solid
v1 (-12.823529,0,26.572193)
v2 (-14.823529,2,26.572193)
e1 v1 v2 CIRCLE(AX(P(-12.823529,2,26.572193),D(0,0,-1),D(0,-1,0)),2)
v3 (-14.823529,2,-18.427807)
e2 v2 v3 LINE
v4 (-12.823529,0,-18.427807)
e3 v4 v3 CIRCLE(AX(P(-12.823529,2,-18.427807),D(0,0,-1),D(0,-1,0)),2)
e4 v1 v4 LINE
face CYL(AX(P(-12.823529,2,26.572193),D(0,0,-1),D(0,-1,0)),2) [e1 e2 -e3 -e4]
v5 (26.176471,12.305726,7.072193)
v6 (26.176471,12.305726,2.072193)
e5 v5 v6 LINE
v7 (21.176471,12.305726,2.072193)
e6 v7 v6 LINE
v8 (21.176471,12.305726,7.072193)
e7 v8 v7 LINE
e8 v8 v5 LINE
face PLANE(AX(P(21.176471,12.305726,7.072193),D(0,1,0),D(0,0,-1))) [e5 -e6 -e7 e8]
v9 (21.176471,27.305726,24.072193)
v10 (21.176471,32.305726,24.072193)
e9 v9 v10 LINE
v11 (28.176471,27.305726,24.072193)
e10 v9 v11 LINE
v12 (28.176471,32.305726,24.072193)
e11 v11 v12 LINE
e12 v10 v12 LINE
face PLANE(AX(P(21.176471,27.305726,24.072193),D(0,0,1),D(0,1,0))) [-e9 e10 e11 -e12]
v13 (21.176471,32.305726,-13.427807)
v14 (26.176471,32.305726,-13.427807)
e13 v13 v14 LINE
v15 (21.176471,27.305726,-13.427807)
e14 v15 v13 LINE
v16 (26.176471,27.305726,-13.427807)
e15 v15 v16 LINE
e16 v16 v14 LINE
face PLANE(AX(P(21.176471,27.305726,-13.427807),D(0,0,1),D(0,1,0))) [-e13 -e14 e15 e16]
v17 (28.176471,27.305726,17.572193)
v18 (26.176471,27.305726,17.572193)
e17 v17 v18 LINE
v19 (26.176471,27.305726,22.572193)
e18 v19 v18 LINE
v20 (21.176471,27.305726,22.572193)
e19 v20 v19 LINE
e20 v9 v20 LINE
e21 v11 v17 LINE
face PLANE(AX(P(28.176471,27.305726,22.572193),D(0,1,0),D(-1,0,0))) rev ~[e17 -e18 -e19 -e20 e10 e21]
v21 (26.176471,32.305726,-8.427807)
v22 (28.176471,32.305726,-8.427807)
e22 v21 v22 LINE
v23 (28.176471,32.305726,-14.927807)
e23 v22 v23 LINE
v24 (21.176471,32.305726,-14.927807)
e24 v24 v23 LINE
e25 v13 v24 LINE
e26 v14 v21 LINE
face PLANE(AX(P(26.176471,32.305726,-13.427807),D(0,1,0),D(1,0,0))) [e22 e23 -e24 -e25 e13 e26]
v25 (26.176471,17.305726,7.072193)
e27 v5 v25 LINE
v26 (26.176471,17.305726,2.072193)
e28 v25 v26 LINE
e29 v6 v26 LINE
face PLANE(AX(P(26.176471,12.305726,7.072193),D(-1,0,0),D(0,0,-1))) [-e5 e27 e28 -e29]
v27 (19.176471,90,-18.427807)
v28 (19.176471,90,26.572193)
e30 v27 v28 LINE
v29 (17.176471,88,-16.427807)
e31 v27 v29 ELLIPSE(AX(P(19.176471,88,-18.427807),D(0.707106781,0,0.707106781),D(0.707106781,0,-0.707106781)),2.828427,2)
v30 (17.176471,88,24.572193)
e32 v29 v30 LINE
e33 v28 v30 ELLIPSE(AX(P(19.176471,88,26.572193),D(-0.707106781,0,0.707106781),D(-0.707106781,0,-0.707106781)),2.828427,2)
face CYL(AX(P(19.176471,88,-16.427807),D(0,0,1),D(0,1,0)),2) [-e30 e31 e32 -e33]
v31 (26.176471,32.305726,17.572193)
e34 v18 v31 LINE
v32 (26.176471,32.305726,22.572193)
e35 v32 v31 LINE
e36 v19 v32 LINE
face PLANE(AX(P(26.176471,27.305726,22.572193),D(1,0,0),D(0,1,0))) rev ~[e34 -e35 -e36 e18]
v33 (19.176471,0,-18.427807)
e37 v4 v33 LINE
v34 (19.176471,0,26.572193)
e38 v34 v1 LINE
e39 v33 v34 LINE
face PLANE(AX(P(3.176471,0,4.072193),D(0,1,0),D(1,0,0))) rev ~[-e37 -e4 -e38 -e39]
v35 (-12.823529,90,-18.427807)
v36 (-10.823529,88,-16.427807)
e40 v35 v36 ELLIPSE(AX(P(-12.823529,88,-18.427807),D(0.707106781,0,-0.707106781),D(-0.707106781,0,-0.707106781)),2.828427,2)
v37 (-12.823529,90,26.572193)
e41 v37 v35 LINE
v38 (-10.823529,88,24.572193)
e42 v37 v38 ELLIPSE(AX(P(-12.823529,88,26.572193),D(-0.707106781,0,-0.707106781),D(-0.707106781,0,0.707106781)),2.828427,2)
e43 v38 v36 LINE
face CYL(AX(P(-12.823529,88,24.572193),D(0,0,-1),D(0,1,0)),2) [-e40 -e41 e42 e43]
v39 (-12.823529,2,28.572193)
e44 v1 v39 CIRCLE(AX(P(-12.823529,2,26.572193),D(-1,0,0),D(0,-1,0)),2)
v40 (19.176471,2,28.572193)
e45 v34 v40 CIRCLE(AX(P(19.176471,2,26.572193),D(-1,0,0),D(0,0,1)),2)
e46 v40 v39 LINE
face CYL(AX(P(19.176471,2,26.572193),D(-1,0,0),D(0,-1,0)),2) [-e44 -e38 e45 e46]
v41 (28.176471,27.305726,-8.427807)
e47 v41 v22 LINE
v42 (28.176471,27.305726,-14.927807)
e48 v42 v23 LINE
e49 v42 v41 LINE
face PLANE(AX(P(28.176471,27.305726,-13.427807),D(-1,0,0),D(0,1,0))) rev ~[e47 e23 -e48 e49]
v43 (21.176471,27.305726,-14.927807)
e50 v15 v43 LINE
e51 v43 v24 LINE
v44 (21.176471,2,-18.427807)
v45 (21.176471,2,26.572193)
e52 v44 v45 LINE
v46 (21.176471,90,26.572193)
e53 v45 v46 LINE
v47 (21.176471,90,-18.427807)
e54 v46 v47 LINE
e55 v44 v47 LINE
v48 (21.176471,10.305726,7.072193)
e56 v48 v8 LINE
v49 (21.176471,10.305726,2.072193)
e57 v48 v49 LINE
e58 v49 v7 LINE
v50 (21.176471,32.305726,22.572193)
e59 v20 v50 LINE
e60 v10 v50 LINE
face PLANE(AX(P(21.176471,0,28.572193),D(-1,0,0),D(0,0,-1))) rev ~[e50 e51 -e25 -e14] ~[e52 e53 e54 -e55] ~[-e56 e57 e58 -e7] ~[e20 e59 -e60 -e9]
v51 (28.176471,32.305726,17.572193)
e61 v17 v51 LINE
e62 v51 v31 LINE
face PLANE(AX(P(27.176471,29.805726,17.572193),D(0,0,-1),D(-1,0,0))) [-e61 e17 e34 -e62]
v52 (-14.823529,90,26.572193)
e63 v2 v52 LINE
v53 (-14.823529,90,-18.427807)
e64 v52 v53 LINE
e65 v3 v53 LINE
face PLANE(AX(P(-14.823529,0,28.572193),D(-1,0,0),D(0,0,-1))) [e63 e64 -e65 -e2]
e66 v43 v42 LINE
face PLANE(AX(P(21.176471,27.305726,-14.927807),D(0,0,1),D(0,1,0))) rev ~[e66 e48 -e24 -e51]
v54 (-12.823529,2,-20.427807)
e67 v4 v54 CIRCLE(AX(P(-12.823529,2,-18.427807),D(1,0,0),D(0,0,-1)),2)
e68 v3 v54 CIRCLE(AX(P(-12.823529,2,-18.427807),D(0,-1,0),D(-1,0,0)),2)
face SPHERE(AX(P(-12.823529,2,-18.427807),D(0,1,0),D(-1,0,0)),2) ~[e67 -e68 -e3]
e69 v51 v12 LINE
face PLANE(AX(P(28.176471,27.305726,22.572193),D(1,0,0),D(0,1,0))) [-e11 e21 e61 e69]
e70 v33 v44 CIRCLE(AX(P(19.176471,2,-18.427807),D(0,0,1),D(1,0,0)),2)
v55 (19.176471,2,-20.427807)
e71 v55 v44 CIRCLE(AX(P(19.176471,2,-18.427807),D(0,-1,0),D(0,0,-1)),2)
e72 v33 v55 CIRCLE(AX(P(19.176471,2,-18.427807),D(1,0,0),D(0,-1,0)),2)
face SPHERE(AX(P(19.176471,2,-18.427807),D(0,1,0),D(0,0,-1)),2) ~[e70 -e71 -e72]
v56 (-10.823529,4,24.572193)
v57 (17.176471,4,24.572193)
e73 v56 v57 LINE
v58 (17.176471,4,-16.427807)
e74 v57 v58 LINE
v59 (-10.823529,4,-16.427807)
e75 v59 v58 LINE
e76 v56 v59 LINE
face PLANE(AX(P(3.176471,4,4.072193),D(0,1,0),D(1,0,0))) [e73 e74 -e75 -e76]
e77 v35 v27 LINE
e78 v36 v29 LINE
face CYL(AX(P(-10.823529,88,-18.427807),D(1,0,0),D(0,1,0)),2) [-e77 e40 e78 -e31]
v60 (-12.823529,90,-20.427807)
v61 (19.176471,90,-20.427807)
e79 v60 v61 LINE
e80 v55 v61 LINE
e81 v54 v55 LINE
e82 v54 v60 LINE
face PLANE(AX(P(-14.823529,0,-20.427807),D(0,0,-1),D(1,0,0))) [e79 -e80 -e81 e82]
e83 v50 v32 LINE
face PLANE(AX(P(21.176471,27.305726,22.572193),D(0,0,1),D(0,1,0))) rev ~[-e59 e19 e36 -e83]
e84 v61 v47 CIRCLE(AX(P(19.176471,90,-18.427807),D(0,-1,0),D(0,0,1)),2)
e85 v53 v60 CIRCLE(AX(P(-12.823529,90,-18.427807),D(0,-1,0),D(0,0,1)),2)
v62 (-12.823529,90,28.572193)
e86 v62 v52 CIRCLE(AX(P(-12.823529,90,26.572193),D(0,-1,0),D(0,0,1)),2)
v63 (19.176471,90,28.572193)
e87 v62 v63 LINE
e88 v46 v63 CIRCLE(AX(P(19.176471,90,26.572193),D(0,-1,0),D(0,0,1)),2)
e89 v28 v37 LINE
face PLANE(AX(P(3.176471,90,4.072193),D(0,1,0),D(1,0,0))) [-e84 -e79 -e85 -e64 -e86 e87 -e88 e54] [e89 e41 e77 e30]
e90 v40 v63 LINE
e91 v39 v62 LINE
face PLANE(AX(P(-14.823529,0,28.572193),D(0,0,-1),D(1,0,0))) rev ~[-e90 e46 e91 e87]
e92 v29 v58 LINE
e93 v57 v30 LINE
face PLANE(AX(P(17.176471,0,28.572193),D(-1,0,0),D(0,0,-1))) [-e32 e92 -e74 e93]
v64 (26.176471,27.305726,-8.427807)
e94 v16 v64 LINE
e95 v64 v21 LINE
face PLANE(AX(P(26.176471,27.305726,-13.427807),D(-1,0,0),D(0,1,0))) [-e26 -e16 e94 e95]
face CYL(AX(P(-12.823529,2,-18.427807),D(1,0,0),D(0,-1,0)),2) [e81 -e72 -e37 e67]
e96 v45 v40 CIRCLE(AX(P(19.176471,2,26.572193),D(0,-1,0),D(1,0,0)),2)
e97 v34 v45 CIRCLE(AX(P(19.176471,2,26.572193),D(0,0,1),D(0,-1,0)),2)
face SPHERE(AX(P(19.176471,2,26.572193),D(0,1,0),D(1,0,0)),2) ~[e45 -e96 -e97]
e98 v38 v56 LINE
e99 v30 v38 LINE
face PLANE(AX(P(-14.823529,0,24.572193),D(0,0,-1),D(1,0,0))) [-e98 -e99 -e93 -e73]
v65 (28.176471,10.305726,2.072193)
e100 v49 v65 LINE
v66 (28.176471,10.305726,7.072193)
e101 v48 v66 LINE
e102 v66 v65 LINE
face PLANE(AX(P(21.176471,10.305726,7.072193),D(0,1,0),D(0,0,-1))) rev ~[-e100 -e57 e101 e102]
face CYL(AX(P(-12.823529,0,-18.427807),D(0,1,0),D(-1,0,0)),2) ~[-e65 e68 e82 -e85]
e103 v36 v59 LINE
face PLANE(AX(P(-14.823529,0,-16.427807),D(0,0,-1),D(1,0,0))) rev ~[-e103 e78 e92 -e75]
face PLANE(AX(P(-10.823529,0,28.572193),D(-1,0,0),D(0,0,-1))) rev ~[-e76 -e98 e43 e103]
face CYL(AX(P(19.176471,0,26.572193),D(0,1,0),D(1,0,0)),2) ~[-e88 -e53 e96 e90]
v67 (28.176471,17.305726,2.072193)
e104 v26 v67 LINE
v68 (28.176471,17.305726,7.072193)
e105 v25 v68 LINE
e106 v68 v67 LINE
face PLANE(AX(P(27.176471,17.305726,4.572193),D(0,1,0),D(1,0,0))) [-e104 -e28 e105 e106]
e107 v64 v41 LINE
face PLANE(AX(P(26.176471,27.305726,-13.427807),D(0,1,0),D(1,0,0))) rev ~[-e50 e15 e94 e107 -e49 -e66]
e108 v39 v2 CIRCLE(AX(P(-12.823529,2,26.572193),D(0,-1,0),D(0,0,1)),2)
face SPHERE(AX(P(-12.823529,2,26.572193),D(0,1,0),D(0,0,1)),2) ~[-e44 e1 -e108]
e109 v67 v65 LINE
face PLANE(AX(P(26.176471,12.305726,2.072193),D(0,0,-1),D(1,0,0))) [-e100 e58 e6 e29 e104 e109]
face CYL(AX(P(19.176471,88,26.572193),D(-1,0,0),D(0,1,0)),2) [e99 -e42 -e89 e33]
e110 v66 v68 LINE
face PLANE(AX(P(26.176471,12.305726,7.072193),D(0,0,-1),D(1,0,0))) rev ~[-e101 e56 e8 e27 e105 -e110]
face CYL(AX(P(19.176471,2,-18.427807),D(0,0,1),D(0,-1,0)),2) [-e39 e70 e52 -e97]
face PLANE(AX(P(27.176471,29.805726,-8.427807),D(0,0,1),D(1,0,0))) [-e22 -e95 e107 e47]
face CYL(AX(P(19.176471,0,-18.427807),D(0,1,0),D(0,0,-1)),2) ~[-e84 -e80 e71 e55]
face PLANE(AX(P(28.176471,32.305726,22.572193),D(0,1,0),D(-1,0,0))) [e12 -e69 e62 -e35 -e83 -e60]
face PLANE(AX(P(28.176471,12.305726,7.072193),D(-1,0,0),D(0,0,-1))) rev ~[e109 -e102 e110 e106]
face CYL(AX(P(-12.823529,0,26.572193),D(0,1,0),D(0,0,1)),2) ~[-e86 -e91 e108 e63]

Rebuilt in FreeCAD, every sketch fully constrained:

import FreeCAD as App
import Part
import Sketcher
Q = App.Units.Quantity


def edges_at(feature, points):
    """Names of the edges that pass closest to the given points."""
    edges = feature.Shape.Edges
    near = lambda p: min(range(len(edges)), key=lambda i: edges[i].distToShape(Part.Vertex(*p))[0])
    return sorted({f"Edge{near(p) + 1}" for p in points})


def faces_at(feature, points):
    """Names of the faces that lie closest to the given points."""
    faces = feature.Shape.Faces
    near = lambda p: min(range(len(faces)), key=lambda i: faces[i].distToShape(Part.Vertex(*p))[0])
    return sorted({f"Face{near(p) + 1}" for p in points})


def add_polygon(sketch, points):
    """Adds a closed chain of lines whose ends are joined by coincident constraints."""
    first, n = sketch.GeometryCount, len(points)
    for a, b in zip(points, points[1:] + points[:1]):
        sketch.addGeometry(Part.LineSegment(App.Vector(*a, 0), App.Vector(*b, 0)), False)
    for i in range(n):
        sketch.addConstraint(Sketcher.Constraint("Coincident", first + i, 2, first + (i + 1) % n, 1))

doc = App.newDocument("Part")
body = doc.addObject("PartDesign::Body", "Body")

# Sketch on XZ plane
sketch1 = body.newObject("Sketcher::SketchObject", "Sketch")
sketch1.AttachmentSupport = (doc.getObject("XZ_Plane"), [""])
sketch1.MapMode = "FlatFace"
add_polygon(sketch1, [(-15, -20), (-15, 29), (21, 29), (21, -20)])  # lines 0-3
sketch1.addConstraint([
    Sketcher.Constraint("Vertical", 0),
    Sketcher.Constraint("Horizontal", 1),
    Sketcher.Constraint("Vertical", 2),
    Sketcher.Constraint("Horizontal", 3),
    Sketcher.Constraint("DistanceX", 1, 1, 1, 2, Q("36 mm")),
    Sketcher.Constraint("DistanceY", 0, 1, 0, 2, Q("49 mm")),
    Sketcher.Constraint("DistanceX", 0, 2, -1, 1, Q("14.823529 mm")),
    Sketcher.Constraint("DistanceY", -1, 1, 0, 2, Q("28.572193 mm")),
])
pad1 = body.newObject("PartDesign::Pad", "Pad")
pad1.Profile = sketch1
pad1.Length = 90
pad1.Reversed = True
doc.recompute()

thickness = body.newObject("PartDesign::Thickness", "Thickness")
thickness.Base = (pad1, faces_at(pad1, [(3.176, 90, 4.072)]))
thickness.Value = 4
thickness.Reversed = True
thickness.Join = "Intersection"
doc.recompute()

fillet = body.newObject("PartDesign::Fillet", "Fillet")
fillet.Base = (thickness, edges_at(thickness, [(-14.824, 45, -20.428)]))
fillet.Radius = 2
doc.recompute()

fillet2 = body.newObject("PartDesign::Fillet", "Fillet001")
fillet2.Base = (fillet, edges_at(fillet, [(21.176, 45, -20.428)]))
fillet2.Radius = 2
doc.recompute()

fillet3 = body.newObject("PartDesign::Fillet", "Fillet002")
fillet3.Base = (fillet2, edges_at(fillet2, [(21.176, 45, 28.572)]))
fillet3.Radius = 2
doc.recompute()

fillet4 = body.newObject("PartDesign::Fillet", "Fillet003")
fillet4.Base = (fillet3, edges_at(fillet3, [(-14.824, 45, 28.572)]))
fillet4.Radius = 2
doc.recompute()

fillet5 = body.newObject("PartDesign::Fillet", "Fillet004")
fillet5.Base = (fillet4, edges_at(fillet4, [
    (-14.824, 0, 4.072),
    (3.176, 0, -20.428),
    (21.176, 0, 4.072),
    (3.176, 0, 28.572),
]))
fillet5.Radius = 2

# Sketch on YZ plane
sketch2 = body.newObject("Sketcher::SketchObject", "Sketch001")
sketch2.AttachmentSupport = (doc.getObject("YZ_Plane"), [""])
sketch2.MapMode = "FlatFace"
sketch2.AttachmentOffset = App.Placement(App.Vector(0, 0, 21.176471), App.Rotation())
add_polygon(sketch2, [(32.3, 24.1), (27.3, 24.1), (27.3, 22.6), (32.3, 22.6)])  # lines 0-3
add_polygon(sketch2, [(32.3, -13.4), (27.3, -13.4), (27.3, -14.9), (32.3, -14.9)])  # lines 4-7
add_polygon(sketch2, [(12.3, 7.1), (10.3, 7.1), (10.3, 2.1), (12.3, 2.1)])  # lines 8-11
sketch2.addConstraint([
    Sketcher.Constraint("Horizontal", 0),
    Sketcher.Constraint("Vertical", 1),
    Sketcher.Constraint("Horizontal", 2),
    Sketcher.Constraint("Vertical", 3),
    Sketcher.Constraint("Horizontal", 4),
    Sketcher.Constraint("Vertical", 5),
    Sketcher.Constraint("Horizontal", 6),
    Sketcher.Constraint("Vertical", 7),
    Sketcher.Constraint("Horizontal", 8),
    Sketcher.Constraint("Vertical", 9),
    Sketcher.Constraint("Horizontal", 10),
    Sketcher.Constraint("Vertical", 11),
    Sketcher.Constraint("Vertical", 1, 2, 4, 2),
    Sketcher.Constraint("Vertical", 3, 2, 6, 2),
    Sketcher.Constraint("Equal", 3, 5),
    Sketcher.Constraint("Equal", 6, 9),
    Sketcher.Constraint("DistanceX", 0, 2, 0, 1, Q("5 mm")),
    Sketcher.Constraint("DistanceX", 8, 2, 8, 1, Q("2 mm")),
    Sketcher.Constraint("DistanceY", 1, 2, 1, 1, Q("1.5 mm")),
    Sketcher.Constraint("DistanceY", 4, 2, 1, 2, Q("36 mm")),
    Sketcher.Constraint("DistanceX", 8, 2, 1, 2, Q("17 mm")),
    Sketcher.Constraint("DistanceY", 8, 2, 0, 2, Q("17 mm")),
    Sketcher.Constraint("DistanceX", -1, 1, 0, 2, Q("27.305726 mm")),
    Sketcher.Constraint("DistanceY", -1, 1, 0, 2, Q("24.072193 mm")),
])
pad2 = body.newObject("PartDesign::Pad", "Pad001")
pad2.Profile = sketch2
pad2.Length = 7

# Sketch on XY plane
sketch3 = body.newObject("Sketcher::SketchObject", "Sketch002")
sketch3.AttachmentSupport = (doc.getObject("XY_Plane"), [""])
sketch3.MapMode = "FlatFace"
sketch3.AttachmentOffset = App.Placement(App.Vector(0, 0, 22.572193), App.Rotation())
add_polygon(sketch3, [(28.2, 32.3), (28.2, 27.3), (26.2, 27.3), (26.2, 32.3)])  # lines 0-3
sketch3.addConstraint([
    Sketcher.Constraint("Vertical", 0),
    Sketcher.Constraint("Horizontal", 1),
    Sketcher.Constraint("Vertical", 2),
    Sketcher.Constraint("Horizontal", 3),
    Sketcher.Constraint("DistanceX", 1, 2, 1, 1, Q("2 mm")),
    Sketcher.Constraint("DistanceY", 0, 2, 0, 1, Q("5 mm")),
    Sketcher.Constraint("DistanceX", -1, 1, 0, 2, Q("28.176471 mm")),
    Sketcher.Constraint("DistanceY", -1, 1, 0, 2, Q("27.305726 mm")),
])
pad3 = body.newObject("PartDesign::Pad", "Pad002")
pad3.Profile = sketch3
pad3.Length = 5
pad3.Reversed = True

# Sketch on XY plane
sketch4 = body.newObject("Sketcher::SketchObject", "Sketch003")
sketch4.AttachmentSupport = (doc.getObject("XY_Plane"), [""])
sketch4.MapMode = "FlatFace"
sketch4.AttachmentOffset = App.Placement(App.Vector(0, 0, -13.427807), App.Rotation())
add_polygon(sketch4, [(26.2, 32.3), (26.2, 27.3), (28.2, 27.3), (28.2, 32.3)])  # lines 0-3
sketch4.addConstraint([
    Sketcher.Constraint("Vertical", 0),
    Sketcher.Constraint("Horizontal", 1),
    Sketcher.Constraint("Vertical", 2),
    Sketcher.Constraint("Horizontal", 3),
    Sketcher.Constraint("DistanceX", 1, 1, 1, 2, Q("2 mm")),
    Sketcher.Constraint("DistanceY", 0, 2, 0, 1, Q("5 mm")),
    Sketcher.Constraint("DistanceX", -1, 1, 0, 2, Q("26.176471 mm")),
    Sketcher.Constraint("DistanceY", -1, 1, 0, 2, Q("27.305726 mm")),
])
pad4 = body.newObject("PartDesign::Pad", "Pad003")
pad4.Profile = sketch4
pad4.Length = 5

# Sketch on XZ plane
sketch5 = body.newObject("Sketcher::SketchObject", "Sketch004")
sketch5.AttachmentSupport = (doc.getObject("XZ_Plane"), [""])
sketch5.MapMode = "FlatFace"
sketch5.AttachmentOffset = App.Placement(App.Vector(0, 0, -12.305726), App.Rotation())
add_polygon(sketch5, [(26.2, 2.1), (26.2, 7.1), (28.2, 7.1), (28.2, 2.1)])  # lines 0-3
sketch5.addConstraint([
    Sketcher.Constraint("Vertical", 0),
    Sketcher.Constraint("Horizontal", 1),
    Sketcher.Constraint("Vertical", 2),
    Sketcher.Constraint("Horizontal", 3),
    Sketcher.Constraint("DistanceX", 1, 1, 1, 2, Q("2 mm")),
    Sketcher.Constraint("DistanceY", 0, 1, 0, 2, Q("5 mm")),
    Sketcher.Constraint("DistanceX", -1, 1, 0, 2, Q("26.176471 mm")),
    Sketcher.Constraint("DistanceY", -1, 1, 0, 2, Q("7.072193 mm")),
])
pad5 = body.newObject("PartDesign::Pad", "Pad004")
pad5.Profile = sketch5
pad5.Length = 5
pad5.Reversed = True
doc.recompute()

fillet6 = body.newObject("PartDesign::Fillet", "Fillet005")
fillet6.Base = (pad5, edges_at(pad5, [(17.176, 90, 4.072)]))
fillet6.Radius = 2
doc.recompute()

fillet7 = body.newObject("PartDesign::Fillet", "Fillet006")
fillet7.Base = (fillet6, edges_at(fillet6, [(4.176, 90, -16.428)]))
fillet7.Radius = 2
doc.recompute()

fillet8 = body.newObject("PartDesign::Fillet", "Fillet007")
fillet8.Base = (fillet7, edges_at(fillet7, [(-10.824, 90, 3.072)]))
fillet8.Radius = 2
doc.recompute()

fillet9 = body.newObject("PartDesign::Fillet", "Fillet008")
fillet9.Base = (fillet8, edges_at(fillet8, [(3.176, 90, 24.572)]))
fillet9.Radius = 2

doc.recompute()
